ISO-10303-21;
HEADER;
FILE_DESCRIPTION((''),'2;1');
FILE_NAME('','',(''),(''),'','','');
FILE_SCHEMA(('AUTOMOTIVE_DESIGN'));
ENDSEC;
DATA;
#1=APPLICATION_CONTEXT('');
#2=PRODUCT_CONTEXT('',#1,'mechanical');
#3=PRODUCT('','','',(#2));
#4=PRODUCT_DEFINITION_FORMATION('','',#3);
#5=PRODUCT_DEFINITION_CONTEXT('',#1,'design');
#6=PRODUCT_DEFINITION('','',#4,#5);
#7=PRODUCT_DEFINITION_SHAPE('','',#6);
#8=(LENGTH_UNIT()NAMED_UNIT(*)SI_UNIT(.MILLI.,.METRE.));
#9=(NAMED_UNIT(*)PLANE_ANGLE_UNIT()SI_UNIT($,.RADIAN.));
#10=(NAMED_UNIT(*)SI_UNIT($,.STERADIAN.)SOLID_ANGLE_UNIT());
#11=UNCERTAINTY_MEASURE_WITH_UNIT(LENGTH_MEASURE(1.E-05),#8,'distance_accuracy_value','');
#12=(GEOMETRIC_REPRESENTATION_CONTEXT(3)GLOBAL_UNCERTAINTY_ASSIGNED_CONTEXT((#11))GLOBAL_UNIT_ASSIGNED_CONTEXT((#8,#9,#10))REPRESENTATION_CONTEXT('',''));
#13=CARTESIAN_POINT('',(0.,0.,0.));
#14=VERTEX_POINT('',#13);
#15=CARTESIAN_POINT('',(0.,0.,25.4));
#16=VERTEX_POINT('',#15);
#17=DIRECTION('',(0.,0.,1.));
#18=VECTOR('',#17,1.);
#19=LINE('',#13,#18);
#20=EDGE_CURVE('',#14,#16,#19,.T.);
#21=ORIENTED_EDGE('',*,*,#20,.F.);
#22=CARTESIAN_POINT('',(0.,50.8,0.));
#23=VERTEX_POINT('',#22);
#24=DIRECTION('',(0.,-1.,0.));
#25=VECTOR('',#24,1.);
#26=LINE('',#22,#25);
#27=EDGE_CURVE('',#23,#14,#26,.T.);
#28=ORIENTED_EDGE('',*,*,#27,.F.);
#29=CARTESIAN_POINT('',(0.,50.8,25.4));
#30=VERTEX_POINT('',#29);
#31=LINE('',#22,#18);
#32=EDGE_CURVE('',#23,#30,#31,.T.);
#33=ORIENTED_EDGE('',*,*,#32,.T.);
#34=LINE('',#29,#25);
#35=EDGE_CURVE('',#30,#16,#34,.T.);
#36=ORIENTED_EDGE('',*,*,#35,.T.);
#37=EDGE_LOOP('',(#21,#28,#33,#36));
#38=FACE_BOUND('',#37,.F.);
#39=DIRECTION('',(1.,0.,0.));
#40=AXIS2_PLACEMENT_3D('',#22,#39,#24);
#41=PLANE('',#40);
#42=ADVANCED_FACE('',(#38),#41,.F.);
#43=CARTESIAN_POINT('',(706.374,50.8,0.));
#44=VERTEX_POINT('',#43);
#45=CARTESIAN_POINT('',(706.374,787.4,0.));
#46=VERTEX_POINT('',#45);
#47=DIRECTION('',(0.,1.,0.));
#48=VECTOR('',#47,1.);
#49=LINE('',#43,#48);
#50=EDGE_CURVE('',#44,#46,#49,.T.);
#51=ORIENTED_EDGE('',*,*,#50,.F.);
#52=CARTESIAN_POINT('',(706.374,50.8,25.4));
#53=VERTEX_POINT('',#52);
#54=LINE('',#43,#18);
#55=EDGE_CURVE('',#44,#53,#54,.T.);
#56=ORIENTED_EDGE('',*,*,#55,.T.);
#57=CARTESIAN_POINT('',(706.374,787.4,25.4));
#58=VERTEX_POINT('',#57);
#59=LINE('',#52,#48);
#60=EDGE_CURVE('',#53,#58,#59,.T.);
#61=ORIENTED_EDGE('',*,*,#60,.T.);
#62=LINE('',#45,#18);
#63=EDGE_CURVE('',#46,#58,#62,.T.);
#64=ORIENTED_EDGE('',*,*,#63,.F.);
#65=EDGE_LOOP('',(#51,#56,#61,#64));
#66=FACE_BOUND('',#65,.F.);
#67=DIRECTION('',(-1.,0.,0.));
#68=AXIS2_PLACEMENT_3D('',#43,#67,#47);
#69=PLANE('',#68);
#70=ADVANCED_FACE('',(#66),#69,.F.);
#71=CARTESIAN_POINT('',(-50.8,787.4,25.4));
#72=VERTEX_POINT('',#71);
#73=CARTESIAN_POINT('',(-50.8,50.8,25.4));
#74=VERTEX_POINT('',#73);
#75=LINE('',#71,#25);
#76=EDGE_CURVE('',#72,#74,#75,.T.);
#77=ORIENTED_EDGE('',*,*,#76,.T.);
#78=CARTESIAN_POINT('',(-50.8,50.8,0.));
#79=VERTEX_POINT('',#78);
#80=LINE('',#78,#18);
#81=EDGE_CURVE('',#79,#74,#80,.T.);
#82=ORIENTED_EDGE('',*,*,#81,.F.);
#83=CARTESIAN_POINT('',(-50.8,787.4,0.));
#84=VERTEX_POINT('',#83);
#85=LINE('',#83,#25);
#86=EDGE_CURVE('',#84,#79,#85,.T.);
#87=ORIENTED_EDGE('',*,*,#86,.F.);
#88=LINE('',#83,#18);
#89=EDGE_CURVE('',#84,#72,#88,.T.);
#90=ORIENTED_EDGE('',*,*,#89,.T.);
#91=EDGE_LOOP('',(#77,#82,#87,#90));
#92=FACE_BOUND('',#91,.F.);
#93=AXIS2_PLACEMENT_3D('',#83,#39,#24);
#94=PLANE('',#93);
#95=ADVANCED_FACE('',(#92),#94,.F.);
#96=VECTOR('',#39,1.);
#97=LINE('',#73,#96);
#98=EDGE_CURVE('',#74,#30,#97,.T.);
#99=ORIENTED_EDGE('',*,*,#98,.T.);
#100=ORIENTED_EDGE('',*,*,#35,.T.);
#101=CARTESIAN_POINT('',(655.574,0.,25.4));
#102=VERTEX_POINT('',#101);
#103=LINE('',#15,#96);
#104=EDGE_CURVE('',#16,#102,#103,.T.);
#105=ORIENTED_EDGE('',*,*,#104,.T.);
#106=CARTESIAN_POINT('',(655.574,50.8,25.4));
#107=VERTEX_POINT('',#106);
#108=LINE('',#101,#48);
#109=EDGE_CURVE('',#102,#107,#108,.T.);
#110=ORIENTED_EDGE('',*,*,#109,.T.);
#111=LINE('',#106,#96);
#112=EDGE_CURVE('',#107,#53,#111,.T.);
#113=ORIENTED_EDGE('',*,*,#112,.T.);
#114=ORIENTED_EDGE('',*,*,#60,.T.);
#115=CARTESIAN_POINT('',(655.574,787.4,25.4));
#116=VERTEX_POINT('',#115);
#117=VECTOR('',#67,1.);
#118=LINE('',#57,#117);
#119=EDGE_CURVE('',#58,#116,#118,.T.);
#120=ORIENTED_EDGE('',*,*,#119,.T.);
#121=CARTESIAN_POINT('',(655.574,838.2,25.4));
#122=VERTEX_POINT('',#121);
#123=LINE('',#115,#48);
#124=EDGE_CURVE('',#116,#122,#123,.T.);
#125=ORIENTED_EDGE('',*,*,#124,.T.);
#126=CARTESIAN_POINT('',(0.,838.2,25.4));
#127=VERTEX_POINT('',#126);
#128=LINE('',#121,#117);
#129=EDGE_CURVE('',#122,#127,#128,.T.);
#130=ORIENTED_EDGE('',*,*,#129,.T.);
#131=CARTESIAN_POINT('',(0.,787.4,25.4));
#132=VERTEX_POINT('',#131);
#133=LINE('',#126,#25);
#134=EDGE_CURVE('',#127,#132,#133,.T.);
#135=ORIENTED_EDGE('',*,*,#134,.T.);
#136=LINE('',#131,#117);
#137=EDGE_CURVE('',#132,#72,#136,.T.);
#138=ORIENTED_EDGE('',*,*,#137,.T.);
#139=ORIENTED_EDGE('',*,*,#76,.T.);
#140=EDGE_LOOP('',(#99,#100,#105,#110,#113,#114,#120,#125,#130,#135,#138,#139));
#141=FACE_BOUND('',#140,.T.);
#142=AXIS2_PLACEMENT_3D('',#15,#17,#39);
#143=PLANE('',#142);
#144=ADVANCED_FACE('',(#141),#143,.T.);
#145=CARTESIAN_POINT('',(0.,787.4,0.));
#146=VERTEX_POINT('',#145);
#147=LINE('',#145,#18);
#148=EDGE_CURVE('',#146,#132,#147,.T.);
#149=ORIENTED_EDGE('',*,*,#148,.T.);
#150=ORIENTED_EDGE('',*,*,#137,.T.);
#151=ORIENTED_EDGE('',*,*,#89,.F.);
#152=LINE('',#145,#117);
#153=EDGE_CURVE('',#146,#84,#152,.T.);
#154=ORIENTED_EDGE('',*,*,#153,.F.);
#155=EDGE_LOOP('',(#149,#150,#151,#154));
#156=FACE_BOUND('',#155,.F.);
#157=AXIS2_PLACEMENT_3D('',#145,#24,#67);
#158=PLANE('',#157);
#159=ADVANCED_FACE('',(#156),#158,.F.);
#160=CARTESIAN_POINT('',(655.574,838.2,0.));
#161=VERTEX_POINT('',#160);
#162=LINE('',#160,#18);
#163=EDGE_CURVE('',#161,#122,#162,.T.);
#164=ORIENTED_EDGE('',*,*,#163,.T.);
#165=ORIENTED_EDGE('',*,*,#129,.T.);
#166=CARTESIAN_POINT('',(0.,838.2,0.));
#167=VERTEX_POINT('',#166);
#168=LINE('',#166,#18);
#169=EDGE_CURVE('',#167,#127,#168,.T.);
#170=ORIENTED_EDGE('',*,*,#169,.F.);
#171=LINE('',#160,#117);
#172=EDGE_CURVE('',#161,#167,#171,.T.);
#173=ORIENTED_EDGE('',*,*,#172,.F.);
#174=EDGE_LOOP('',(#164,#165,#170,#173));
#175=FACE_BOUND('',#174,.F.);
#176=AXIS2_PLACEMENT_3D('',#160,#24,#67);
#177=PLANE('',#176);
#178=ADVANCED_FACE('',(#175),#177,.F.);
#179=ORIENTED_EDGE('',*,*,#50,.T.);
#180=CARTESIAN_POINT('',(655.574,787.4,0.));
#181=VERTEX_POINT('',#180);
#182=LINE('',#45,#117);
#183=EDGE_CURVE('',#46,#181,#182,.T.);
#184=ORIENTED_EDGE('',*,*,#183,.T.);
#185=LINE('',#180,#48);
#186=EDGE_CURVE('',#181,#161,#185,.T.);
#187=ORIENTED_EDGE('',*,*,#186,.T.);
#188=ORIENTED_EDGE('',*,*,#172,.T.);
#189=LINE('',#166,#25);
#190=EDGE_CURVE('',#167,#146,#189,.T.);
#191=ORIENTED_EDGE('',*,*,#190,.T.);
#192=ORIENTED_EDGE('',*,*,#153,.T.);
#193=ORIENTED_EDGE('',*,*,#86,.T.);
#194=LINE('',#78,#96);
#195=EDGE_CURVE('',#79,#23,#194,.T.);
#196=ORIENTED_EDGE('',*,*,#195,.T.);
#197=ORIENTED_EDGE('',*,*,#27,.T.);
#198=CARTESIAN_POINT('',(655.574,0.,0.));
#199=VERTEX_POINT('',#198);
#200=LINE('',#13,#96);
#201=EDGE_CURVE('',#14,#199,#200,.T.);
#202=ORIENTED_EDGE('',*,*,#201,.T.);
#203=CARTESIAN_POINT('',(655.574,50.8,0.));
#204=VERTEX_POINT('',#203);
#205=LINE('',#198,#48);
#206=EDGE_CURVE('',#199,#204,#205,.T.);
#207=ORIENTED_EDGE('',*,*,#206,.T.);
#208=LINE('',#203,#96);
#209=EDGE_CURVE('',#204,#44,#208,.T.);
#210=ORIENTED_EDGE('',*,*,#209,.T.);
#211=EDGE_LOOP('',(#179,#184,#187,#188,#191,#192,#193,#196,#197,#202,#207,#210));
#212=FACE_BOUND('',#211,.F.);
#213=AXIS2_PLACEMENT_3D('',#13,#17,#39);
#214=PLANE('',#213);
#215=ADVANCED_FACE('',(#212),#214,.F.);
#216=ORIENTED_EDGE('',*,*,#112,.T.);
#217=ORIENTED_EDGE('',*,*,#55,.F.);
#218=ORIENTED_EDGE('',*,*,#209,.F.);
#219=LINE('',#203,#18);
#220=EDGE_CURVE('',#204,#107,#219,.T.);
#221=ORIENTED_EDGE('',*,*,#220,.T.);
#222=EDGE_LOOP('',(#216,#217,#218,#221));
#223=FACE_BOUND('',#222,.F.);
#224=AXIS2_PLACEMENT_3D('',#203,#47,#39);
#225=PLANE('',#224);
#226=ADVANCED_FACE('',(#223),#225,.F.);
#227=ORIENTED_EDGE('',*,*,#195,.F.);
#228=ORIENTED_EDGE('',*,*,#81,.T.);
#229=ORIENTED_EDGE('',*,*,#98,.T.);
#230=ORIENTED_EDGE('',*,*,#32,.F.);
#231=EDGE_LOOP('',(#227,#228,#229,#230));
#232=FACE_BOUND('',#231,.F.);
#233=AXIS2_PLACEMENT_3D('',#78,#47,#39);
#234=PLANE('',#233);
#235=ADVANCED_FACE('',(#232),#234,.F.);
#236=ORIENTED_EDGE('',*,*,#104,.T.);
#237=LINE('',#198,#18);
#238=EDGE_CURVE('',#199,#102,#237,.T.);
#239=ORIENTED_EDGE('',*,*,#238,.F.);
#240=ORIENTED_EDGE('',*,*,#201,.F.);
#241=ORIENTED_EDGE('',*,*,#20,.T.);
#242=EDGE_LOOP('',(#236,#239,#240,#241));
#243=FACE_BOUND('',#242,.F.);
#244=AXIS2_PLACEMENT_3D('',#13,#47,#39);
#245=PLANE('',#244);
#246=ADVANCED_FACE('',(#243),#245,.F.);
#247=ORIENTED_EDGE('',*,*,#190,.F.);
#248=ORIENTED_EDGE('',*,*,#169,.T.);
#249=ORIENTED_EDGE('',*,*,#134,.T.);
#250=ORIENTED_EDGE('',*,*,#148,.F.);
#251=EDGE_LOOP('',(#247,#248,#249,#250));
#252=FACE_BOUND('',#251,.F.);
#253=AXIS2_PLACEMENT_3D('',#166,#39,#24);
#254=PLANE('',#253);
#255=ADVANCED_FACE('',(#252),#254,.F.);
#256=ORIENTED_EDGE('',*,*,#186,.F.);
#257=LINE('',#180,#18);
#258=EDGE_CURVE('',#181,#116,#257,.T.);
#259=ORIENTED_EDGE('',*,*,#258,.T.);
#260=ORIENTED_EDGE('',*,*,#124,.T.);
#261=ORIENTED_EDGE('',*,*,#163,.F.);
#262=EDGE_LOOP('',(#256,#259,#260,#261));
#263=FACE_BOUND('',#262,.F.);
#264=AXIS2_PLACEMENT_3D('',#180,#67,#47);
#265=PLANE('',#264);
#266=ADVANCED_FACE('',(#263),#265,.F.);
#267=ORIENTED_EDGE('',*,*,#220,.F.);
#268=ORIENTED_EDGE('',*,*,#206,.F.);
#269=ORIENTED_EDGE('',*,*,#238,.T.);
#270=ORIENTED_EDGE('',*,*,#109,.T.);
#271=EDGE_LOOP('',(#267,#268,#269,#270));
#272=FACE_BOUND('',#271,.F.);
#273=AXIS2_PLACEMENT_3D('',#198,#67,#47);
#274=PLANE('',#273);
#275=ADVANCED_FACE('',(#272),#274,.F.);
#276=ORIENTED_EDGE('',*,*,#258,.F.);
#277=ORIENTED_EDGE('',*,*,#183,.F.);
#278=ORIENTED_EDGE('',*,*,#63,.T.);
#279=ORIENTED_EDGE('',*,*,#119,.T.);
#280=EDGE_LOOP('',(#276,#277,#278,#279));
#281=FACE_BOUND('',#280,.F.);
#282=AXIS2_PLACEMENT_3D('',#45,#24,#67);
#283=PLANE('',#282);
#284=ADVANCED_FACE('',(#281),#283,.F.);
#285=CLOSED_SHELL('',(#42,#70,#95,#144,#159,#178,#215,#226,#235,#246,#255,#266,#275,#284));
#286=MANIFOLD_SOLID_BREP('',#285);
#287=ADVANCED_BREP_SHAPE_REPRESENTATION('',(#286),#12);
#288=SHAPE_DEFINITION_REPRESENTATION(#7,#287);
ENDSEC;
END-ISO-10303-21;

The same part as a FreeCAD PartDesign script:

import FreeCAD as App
import Part
import Sketcher
from FreeCAD import Vector
Q = App.Units.Quantity

doc = App.newDocument("Part")
body = doc.addObject("PartDesign::Body", "Body")

# Sketch on XY plane
sketch1 = body.newObject("Sketcher::SketchObject", "Sketch")
sketch1.AttachmentSupport = (doc.getObject("XY_Plane"), [""])
sketch1.MapMode = "FlatFace"
sketch1.addGeometry([
    Part.LineSegment(Vector(0, 50.8, 0), Vector(0, 0, 0)),  # 0
    Part.LineSegment(Vector(0, 0, 0), Vector(655.574, 0, 0)),  # 1
    Part.LineSegment(Vector(655.574, 0, 0), Vector(655.574, 50.8, 0)),  # 2
    Part.LineSegment(Vector(655.574, 50.8, 0), Vector(706.374, 50.8, 0)),  # 3
    Part.LineSegment(Vector(706.374, 50.8, 0), Vector(706.374, 787.4, 0)),  # 4
    Part.LineSegment(Vector(706.374, 787.4, 0), Vector(655.574, 787.4, 0)),  # 5
    Part.LineSegment(Vector(655.574, 787.4, 0), Vector(655.574, 838.2, 0)),  # 6
    Part.LineSegment(Vector(655.574, 838.2, 0), Vector(0, 838.2, 0)),  # 7
    Part.LineSegment(Vector(0, 838.2, 0), Vector(0, 787.4, 0)),  # 8
    Part.LineSegment(Vector(0, 787.4, 0), Vector(-50.8, 787.4, 0)),  # 9
    Part.LineSegment(Vector(-50.8, 787.4, 0), Vector(-50.8, 50.8, 0)),  # 10
    Part.LineSegment(Vector(-50.8, 50.8, 0), Vector(0, 50.8, 0)),  # 11
], False)
sketch1.addConstraint([
    Sketcher.Constraint("Coincident", 0, 2, 1, 1),
    Sketcher.Constraint("Coincident", 1, 2, 2, 1),
    Sketcher.Constraint("Coincident", 2, 2, 3, 1),
    Sketcher.Constraint("Coincident", 3, 2, 4, 1),
    Sketcher.Constraint("Coincident", 4, 2, 5, 1),
    Sketcher.Constraint("Coincident", 5, 2, 6, 1),
    Sketcher.Constraint("Coincident", 6, 2, 7, 1),
    Sketcher.Constraint("Coincident", 7, 2, 8, 1),
    Sketcher.Constraint("Coincident", 8, 2, 9, 1),
    Sketcher.Constraint("Coincident", 9, 2, 10, 1),
    Sketcher.Constraint("Coincident", 10, 2, 11, 1),
    Sketcher.Constraint("Coincident", 11, 2, 0, 1),
    Sketcher.Constraint("Vertical", 0),
    Sketcher.Constraint("Horizontal", 1),
    Sketcher.Constraint("Vertical", 2),
    Sketcher.Constraint("Horizontal", 3),
    Sketcher.Constraint("Vertical", 4),
    Sketcher.Constraint("Horizontal", 5),
    Sketcher.Constraint("Vertical", 6),
    Sketcher.Constraint("Horizontal", 7),
    Sketcher.Constraint("Vertical", 8),
    Sketcher.Constraint("Horizontal", 9),
    Sketcher.Constraint("Vertical", 10),
    Sketcher.Constraint("Horizontal", 11),
    Sketcher.Constraint("Coincident", 0, 2, -1, 1),
    Sketcher.Constraint("PointOnObject", 7, 2, -2),
    Sketcher.Constraint("Horizontal", 5, 2, 8, 2),
    Sketcher.Constraint("Horizontal", 3, 2, 10, 2),
    Sketcher.Constraint("Vertical", 2, 2, 5, 2),
    Sketcher.Constraint("Equal", 5, 9),
    Sketcher.Constraint("Equal", 11, 0),
    Sketcher.Constraint("Equal", 2, 6),
    Sketcher.Constraint("DistanceX", 3, 1, 3, 2, Q("2 in")),
    Sketcher.Constraint("DistanceY", 4, 1, 4, 2, Q("29 in")),
    Sketcher.Constraint("DistanceX", 1, 1, 1, 2, Q("25.81 in")),
])
pad1 = body.newObject("PartDesign::Pad", "Pad")
pad1.Profile = sketch1
pad1.Length = Q("1 in")

doc.recompute()
